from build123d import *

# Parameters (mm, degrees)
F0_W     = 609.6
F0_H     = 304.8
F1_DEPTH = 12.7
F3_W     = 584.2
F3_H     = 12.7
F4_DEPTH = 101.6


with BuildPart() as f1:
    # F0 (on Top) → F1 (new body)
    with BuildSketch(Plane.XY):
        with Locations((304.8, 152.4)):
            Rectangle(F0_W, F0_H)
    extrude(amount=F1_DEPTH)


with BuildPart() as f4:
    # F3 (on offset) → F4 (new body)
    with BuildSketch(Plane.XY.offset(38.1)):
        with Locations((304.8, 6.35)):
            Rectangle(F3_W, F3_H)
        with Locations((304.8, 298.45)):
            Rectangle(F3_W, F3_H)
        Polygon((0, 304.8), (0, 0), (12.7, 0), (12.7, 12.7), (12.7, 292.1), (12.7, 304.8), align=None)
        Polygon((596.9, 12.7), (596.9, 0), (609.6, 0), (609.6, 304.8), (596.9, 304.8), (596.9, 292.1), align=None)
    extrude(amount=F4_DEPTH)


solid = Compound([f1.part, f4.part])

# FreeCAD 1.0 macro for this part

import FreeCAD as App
import Part
import Sketcher

V = App.Vector
Q = App.Units.Quantity

doc = App.newDocument("Part")
body = doc.addObject("PartDesign::Body", "Body")

# Sketch on XY plane
sketch1 = body.newObject("Sketcher::SketchObject", "Sketch")
sketch1.AttachmentSupport = (doc.getObject("XY_Plane"), [""])
sketch1.MapMode = "FlatFace"
sketch1.addGeometry([
    Part.LineSegment(V(0, 304.8, 0), V(0, 0, 0)),
    Part.LineSegment(V(0, 0, 0), V(609.6, 0, 0)),
    Part.LineSegment(V(609.6, 0, 0), V(609.6, 304.8, 0)),
    Part.LineSegment(V(609.6, 304.8, 0), V(0, 304.8, 0)),
], False)
sketch1.addConstraint([
    Sketcher.Constraint("Coincident", 0, 2, 1, 1),
    Sketcher.Constraint("Coincident", 1, 2, 2, 1),
    Sketcher.Constraint("Coincident", 2, 2, 3, 1),
    Sketcher.Constraint("Coincident", 3, 2, 0, 1),
    Sketcher.Constraint("Vertical", 0),
    Sketcher.Constraint("Horizontal", 1),
    Sketcher.Constraint("Vertical", 2),
    Sketcher.Constraint("Horizontal", 3),
    Sketcher.Constraint("Coincident", 0, 2, -1, 1),
    Sketcher.Constraint("DistanceX", 1, 1, 1, 2, Q("24 in")),
    Sketcher.Constraint("DistanceY", 0, 2, 0, 1, Q("12 in")),
])
pad1 = body.newObject("PartDesign::Pad", "Pad")
pad1.Profile = sketch1
pad1.Length = Q("0.5 in")
body2 = doc.addObject("PartDesign::Body", "Body001")

# Sketch on XY plane
sketch2 = body2.newObject("Sketcher::SketchObject", "Sketch001")
sketch2.AttachmentSupport = (doc.getObject("XY_Plane001"), [""])
sketch2.MapMode = "FlatFace"
sketch2.AttachmentOffset = App.Placement(V(0, 0, 1.5 * 25.4), App.Rotation())
sketch2.addGeometry([
    Part.LineSegment(V(0, 304.8, 0), V(0, 0, 0)),  # 0
    Part.LineSegment(V(0, 0, 0), V(609.6, 0, 0)),  # 1
    Part.LineSegment(V(609.6, 0, 0), V(609.6, 304.8, 0)),  # 2
    Part.LineSegment(V(609.6, 304.8, 0), V(0, 304.8, 0)),  # 3
    Part.LineSegment(V(596.9, 12.7, 0), V(12.7, 12.7, 0)),  # 4
    Part.LineSegment(V(12.7, 12.7, 0), V(12.7, 292.1, 0)),  # 5
    Part.LineSegment(V(12.7, 292.1, 0), V(596.9, 292.1, 0)),  # 6
    Part.LineSegment(V(596.9, 292.1, 0), V(596.9, 12.7, 0)),  # 7
], False)
sketch2.addConstraint([
    Sketcher.Constraint("Coincident", 0, 2, 1, 1),
    Sketcher.Constraint("Coincident", 1, 2, 2, 1),
    Sketcher.Constraint("Coincident", 2, 2, 3, 1),
    Sketcher.Constraint("Coincident", 3, 2, 0, 1),
    Sketcher.Constraint("Coincident", 4, 2, 5, 1),
    Sketcher.Constraint("Coincident", 5, 2, 6, 1),
    Sketcher.Constraint("Coincident", 6, 2, 7, 1),
    Sketcher.Constraint("Coincident", 7, 2, 4, 1),
    Sketcher.Constraint("Vertical", 0),
    Sketcher.Constraint("Horizontal", 1),
    Sketcher.Constraint("Vertical", 2),
    Sketcher.Constraint("Horizontal", 3),
    Sketcher.Constraint("Horizontal", 4),
    Sketcher.Constraint("Vertical", 5),
    Sketcher.Constraint("Horizontal", 6),
    Sketcher.Constraint("Vertical", 7),
    Sketcher.Constraint("Coincident", 0, 2, -1, 1),
    Sketcher.Constraint("DistanceX", 1, 1, 1, 2, Q("24 in")),
    Sketcher.Constraint("DistanceX", 4, 2, 4, 1, Q("23 in")),
    Sketcher.Constraint("DistanceY", 0, 2, 0, 1, Q("12 in")),
    Sketcher.Constraint("DistanceY", 5, 1, 5, 2, Q("11 in")),
    Sketcher.Constraint("DistanceX", -1, 1, 4, 2, Q("0.5 in")),
    Sketcher.Constraint("DistanceY", -1, 1, 4, 2, Q("0.5 in")),
])
pad2 = body2.newObject("PartDesign::Pad", "Pad001")
pad2.Profile = sketch2
pad2.Length = Q("4 in")

doc.recompute()
